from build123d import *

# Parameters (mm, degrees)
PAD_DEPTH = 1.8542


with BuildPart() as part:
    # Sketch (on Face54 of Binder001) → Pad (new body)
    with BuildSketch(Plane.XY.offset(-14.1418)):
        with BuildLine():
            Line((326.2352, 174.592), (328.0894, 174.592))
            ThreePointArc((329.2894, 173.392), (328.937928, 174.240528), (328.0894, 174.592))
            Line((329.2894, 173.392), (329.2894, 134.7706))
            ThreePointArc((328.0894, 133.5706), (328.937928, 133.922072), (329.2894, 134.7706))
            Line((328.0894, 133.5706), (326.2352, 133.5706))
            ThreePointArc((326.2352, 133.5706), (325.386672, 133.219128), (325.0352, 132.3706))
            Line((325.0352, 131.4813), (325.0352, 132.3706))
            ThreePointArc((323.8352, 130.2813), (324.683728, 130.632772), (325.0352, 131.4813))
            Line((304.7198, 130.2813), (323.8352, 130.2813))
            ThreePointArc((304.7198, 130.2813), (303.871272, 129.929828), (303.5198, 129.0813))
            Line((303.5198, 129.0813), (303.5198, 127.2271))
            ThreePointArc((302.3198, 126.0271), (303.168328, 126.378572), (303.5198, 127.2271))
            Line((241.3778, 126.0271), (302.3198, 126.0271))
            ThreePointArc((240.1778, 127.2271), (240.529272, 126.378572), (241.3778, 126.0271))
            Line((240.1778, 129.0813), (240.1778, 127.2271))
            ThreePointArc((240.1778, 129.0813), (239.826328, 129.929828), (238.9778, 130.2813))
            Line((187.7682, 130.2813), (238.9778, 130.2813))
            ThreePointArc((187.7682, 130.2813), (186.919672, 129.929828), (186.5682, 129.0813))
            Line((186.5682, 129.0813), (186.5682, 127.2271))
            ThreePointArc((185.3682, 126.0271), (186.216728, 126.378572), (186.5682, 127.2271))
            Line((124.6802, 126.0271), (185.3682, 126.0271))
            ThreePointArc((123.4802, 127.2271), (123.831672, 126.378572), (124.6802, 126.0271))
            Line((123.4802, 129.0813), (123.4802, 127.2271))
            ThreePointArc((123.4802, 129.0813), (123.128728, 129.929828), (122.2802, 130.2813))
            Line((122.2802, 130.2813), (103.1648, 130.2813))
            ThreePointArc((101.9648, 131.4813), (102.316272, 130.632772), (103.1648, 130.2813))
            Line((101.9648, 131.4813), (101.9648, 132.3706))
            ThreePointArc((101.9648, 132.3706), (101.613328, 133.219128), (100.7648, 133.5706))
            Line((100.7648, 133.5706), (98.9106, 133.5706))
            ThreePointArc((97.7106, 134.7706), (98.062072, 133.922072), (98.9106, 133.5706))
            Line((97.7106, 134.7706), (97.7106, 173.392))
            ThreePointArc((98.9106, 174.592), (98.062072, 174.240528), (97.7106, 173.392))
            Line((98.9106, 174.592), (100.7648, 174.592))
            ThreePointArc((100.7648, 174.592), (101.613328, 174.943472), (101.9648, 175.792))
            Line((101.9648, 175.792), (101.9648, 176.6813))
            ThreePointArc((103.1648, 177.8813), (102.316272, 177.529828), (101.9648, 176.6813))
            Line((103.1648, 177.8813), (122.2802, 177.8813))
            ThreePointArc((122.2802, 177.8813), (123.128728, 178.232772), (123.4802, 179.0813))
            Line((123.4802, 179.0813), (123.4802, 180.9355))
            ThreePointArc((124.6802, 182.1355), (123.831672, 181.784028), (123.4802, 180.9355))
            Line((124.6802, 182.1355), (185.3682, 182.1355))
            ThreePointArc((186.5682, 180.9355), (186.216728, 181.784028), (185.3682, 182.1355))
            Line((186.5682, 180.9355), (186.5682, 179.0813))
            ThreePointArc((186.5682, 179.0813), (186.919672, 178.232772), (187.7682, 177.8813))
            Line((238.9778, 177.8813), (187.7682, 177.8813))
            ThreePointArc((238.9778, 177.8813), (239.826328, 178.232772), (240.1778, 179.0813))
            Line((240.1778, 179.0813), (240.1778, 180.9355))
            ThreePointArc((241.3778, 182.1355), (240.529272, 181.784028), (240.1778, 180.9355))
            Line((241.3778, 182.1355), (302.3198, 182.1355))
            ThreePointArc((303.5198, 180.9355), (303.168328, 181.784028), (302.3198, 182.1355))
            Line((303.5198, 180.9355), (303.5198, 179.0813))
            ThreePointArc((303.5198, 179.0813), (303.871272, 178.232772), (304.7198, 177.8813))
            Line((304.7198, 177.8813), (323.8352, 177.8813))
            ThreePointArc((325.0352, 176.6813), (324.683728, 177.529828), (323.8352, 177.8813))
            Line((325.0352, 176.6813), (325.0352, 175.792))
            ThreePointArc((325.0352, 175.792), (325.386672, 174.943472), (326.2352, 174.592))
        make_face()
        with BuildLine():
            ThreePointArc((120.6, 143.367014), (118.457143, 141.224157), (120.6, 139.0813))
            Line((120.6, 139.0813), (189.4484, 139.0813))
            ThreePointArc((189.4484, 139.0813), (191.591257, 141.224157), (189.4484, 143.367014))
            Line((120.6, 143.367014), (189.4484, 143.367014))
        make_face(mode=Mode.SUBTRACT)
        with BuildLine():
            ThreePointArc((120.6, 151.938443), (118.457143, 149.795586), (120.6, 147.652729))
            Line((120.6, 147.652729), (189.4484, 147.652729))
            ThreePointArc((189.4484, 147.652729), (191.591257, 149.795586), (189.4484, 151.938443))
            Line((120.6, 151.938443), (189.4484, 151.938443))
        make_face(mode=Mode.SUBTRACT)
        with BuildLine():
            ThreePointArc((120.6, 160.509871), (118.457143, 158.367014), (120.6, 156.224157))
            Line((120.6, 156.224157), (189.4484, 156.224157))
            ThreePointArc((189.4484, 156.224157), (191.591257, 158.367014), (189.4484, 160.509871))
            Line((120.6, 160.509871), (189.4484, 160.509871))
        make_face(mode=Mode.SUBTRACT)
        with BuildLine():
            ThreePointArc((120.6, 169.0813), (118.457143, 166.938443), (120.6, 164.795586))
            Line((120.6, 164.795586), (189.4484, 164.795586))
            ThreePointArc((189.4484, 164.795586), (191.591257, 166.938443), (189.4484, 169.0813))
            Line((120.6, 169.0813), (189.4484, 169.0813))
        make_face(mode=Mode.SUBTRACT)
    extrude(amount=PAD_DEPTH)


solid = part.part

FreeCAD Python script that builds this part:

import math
import FreeCAD as App
import Part
import Sketcher

V = App.Vector

doc = App.newDocument("Part")
body = doc.addObject("PartDesign::Body", "Body")

sketch1 = doc.addObject("Sketcher::SketchObject", "Sketch")
body.addObject(sketch1)
sketch1.AttachmentSupport = (doc.XY_Plane, [""])
sketch1.MapMode = "FlatFace"
sketch1.AttachmentOffset = App.Placement(V(0, 0, -14.1418), App.Rotation())
sketch1.addGeometry([
    Part.LineSegment(V(328.0894, 174.592, 0), V(326.2352, 174.592, 0)),
    Part.ArcOfCircle(Part.Circle(V(326.2352, 175.792, 0), V(0, 0, 1), 1.2), math.radians(-179.999978), math.radians(-90.000022)),
    Part.LineSegment(V(325.0352, 175.792, 0), V(325.0352, 176.6813, 0)),
    Part.ArcOfCircle(Part.Circle(V(323.8352, 176.6813, 0), V(0, 0, 1), 1.2), math.radians(0.000022), math.radians(89.999978)),
    Part.LineSegment(V(323.8352, 177.8813, 0), V(304.7198, 177.8813, 0)),
    Part.ArcOfCircle(Part.Circle(V(304.7198, 179.0813, 0), V(0, 0, 1), 1.2), math.radians(-179.999978), math.radians(-90.000022)),
    Part.LineSegment(V(303.5198, 179.0813, 0), V(303.5198, 180.9355, 0)),
    Part.ArcOfCircle(Part.Circle(V(302.3198, 180.9355, 0), V(0, 0, 1), 1.2), math.radians(0.000022), math.radians(89.999978)),
    Part.LineSegment(V(302.3198, 182.1355, 0), V(241.3778, 182.1355, 0)),
    Part.ArcOfCircle(Part.Circle(V(241.3778, 180.9355, 0), V(0, 0, 1), 1.2), math.radians(90.000022), math.radians(179.999978)),
    Part.LineSegment(V(240.1778, 180.9355, 0), V(240.1778, 179.0813, 0)),
    Part.ArcOfCircle(Part.Circle(V(238.9778, 179.0813, 0), V(0, 0, 1), 1.2), math.radians(-89.999978), math.radians(-0.000022)),
    Part.LineSegment(V(238.9778, 177.8813, 0), V(187.7682, 177.8813, 0)),
    Part.ArcOfCircle(Part.Circle(V(187.7682, 179.0813, 0), V(0, 0, 1), 1.2), math.radians(-179.999978), math.radians(-90.000022)),
    Part.LineSegment(V(186.5682, 179.0813, 0), V(186.5682, 180.9355, 0)),
    Part.ArcOfCircle(Part.Circle(V(185.3682, 180.9355, 0), V(0, 0, 1), 1.2), math.radians(0.000022), math.radians(89.999978)),
    Part.LineSegment(V(185.3682, 182.1355, 0), V(124.6802, 182.1355, 0)),
    Part.ArcOfCircle(Part.Circle(V(124.6802, 180.9355, 0), V(0, 0, 1), 1.2), math.radians(90.000022), math.radians(179.999978)),
    Part.LineSegment(V(123.4802, 180.9355, 0), V(123.4802, 179.0813, 0)),
    Part.ArcOfCircle(Part.Circle(V(122.2802, 179.0813, 0), V(0, 0, 1), 1.2), math.radians(-89.999978), math.radians(-0.000022)),
    Part.LineSegment(V(122.2802, 177.8813, 0), V(103.1648, 177.8813, 0)),
    Part.ArcOfCircle(Part.Circle(V(103.1648, 176.6813, 0), V(0, 0, 1), 1.2), math.radians(90.000022), math.radians(179.999978)),
    Part.LineSegment(V(101.9648, 176.6813, 0), V(101.9648, 175.792, 0)),
    Part.ArcOfCircle(Part.Circle(V(100.7648, 175.792, 0), V(0, 0, 1), 1.2), math.radians(-89.999978), math.radians(-0.000022)),
    Part.LineSegment(V(100.7648, 174.592, 0), V(98.9106, 174.592, 0)),
    Part.ArcOfCircle(Part.Circle(V(98.9106, 173.392, 0), V(0, 0, 1), 1.2), math.radians(90.000022), math.radians(179.999978)),
    Part.LineSegment(V(97.7106, 173.392, 0), V(97.7106, 134.7706, 0)),
    Part.ArcOfCircle(Part.Circle(V(98.9106, 134.7706, 0), V(0, 0, 1), 1.2), math.radians(-179.999978), math.radians(-90.000022)),
    Part.LineSegment(V(98.9106, 133.5706, 0), V(100.7648, 133.5706, 0)),
    Part.ArcOfCircle(Part.Circle(V(100.7648, 132.3706, 0), V(0, 0, 1), 1.2), math.radians(0.000022), math.radians(89.999978)),
    Part.LineSegment(V(101.9648, 132.3706, 0), V(101.9648, 131.4813, 0)),
    Part.ArcOfCircle(Part.Circle(V(103.1648, 131.4813, 0), V(0, 0, 1), 1.2), math.radians(-179.999978), math.radians(-90.000022)),
    Part.LineSegment(V(103.1648, 130.2813, 0), V(122.2802, 130.2813, 0)),
    Part.ArcOfCircle(Part.Circle(V(122.2802, 129.0813, 0), V(0, 0, 1), 1.2), math.radians(0.000022), math.radians(89.999978)),
    Part.LineSegment(V(123.4802, 129.0813, 0), V(123.4802, 127.2271, 0)),
    Part.ArcOfCircle(Part.Circle(V(124.6802, 127.2271, 0), V(0, 0, 1), 1.2), math.radians(-179.999978), math.radians(-90.000022)),
    Part.LineSegment(V(124.6802, 126.0271, 0), V(185.3682, 126.0271, 0)),
    Part.ArcOfCircle(Part.Circle(V(185.3682, 127.2271, 0), V(0, 0, 1), 1.2), math.radians(-89.999978), math.radians(-0.000022)),
    Part.LineSegment(V(186.5682, 127.2271, 0), V(186.5682, 129.0813, 0)),
    Part.ArcOfCircle(Part.Circle(V(187.7682, 129.0813, 0), V(0, 0, 1), 1.2), math.radians(90.000022), math.radians(179.999978)),
    Part.LineSegment(V(187.7682, 130.2813, 0), V(238.9778, 130.2813, 0)),
    Part.ArcOfCircle(Part.Circle(V(238.9778, 129.0813, 0), V(0, 0, 1), 1.2), math.radians(0.000022), math.radians(89.999978)),
    Part.LineSegment(V(240.1778, 129.0813, 0), V(240.1778, 127.2271, 0)),
    Part.ArcOfCircle(Part.Circle(V(241.3778, 127.2271, 0), V(0, 0, 1), 1.2), math.radians(-179.999978), math.radians(-90.000022)),
    Part.LineSegment(V(241.3778, 126.0271, 0), V(302.3198, 126.0271, 0)),
    Part.ArcOfCircle(Part.Circle(V(302.3198, 127.2271, 0), V(0, 0, 1), 1.2), math.radians(-89.999978), math.radians(-0.000022)),
    Part.LineSegment(V(303.5198, 127.2271, 0), V(303.5198, 129.0813, 0)),
    Part.ArcOfCircle(Part.Circle(V(304.7198, 129.0813, 0), V(0, 0, 1), 1.2), math.radians(90.000022), math.radians(179.999978)),
    Part.LineSegment(V(304.7198, 130.2813, 0), V(323.8352, 130.2813, 0)),
    Part.ArcOfCircle(Part.Circle(V(323.8352, 131.4813, 0), V(0, 0, 1), 1.2), math.radians(-89.999978), math.radians(-0.000022)),
    Part.LineSegment(V(325.0352, 131.4813, 0), V(325.0352, 132.3706, 0)),
    Part.ArcOfCircle(Part.Circle(V(326.2352, 132.3706, 0), V(0, 0, 1), 1.2), math.radians(90.000022), math.radians(179.999978)),
    Part.LineSegment(V(326.2352, 133.5706, 0), V(328.0894, 133.5706, 0)),
    Part.ArcOfCircle(Part.Circle(V(328.0894, 134.7706, 0), V(0, 0, 1), 1.2), math.radians(-89.999978), math.radians(-0.000022)),
    Part.LineSegment(V(329.2894, 134.7706, 0), V(329.2894, 173.392, 0)),
    Part.ArcOfCircle(Part.Circle(V(328.0894, 173.392, 0), V(0, 0, 1), 1.2), math.radians(0.000022), math.radians(89.999978)),
    Part.LineSegment(V(120.6, 143.367014, 0), V(189.4484, 143.367014, 0)),
    Part.ArcOfCircle(Part.Circle(V(189.4484, 141.224157, 0), V(0, 0, 1), 2.142857), math.radians(-90), math.radians(90)),
    Part.LineSegment(V(189.4484, 139.0813, 0), V(120.6, 139.0813, 0)),
    Part.ArcOfCircle(Part.Circle(V(120.6, 141.224157, 0), V(0, 0, 1), 2.142857), math.radians(90), math.radians(270)),
    Part.LineSegment(V(120.6, 151.938443, 0), V(189.4484, 151.938443, 0)),
    Part.ArcOfCircle(Part.Circle(V(189.4484, 149.795586, 0), V(0, 0, 1), 2.142857), math.radians(-90), math.radians(90)),
    Part.LineSegment(V(189.4484, 147.652729, 0), V(120.6, 147.652729, 0)),
    Part.ArcOfCircle(Part.Circle(V(120.6, 149.795586, 0), V(0, 0, 1), 2.142857), math.radians(90), math.radians(270)),
    Part.LineSegment(V(120.6, 160.509871, 0), V(189.4484, 160.509871, 0)),
    Part.ArcOfCircle(Part.Circle(V(189.4484, 158.367014, 0), V(0, 0, 1), 2.142857), math.radians(-90), math.radians(90)),
    Part.LineSegment(V(189.4484, 156.224157, 0), V(120.6, 156.224157, 0)),
    Part.ArcOfCircle(Part.Circle(V(120.6, 158.367014, 0), V(0, 0, 1), 2.142857), math.radians(90), math.radians(270)),
    Part.LineSegment(V(120.6, 169.0813, 0), V(189.4484, 169.0813, 0)),
    Part.ArcOfCircle(Part.Circle(V(189.4484, 166.938443, 0), V(0, 0, 1), 2.142857), math.radians(-90), math.radians(90)),
    Part.LineSegment(V(189.4484, 164.795586, 0), V(120.6, 164.795586, 0)),
    Part.ArcOfCircle(Part.Circle(V(120.6, 166.938443, 0), V(0, 0, 1), 2.142857), math.radians(90), math.radians(270)),
], False)
sketch1.addConstraint([
    Sketcher.Constraint("Tangent", 0, 2, 1, 2),
    Sketcher.Constraint("Tangent", 1, 1, 2, 1),
    Sketcher.Constraint("Tangent", 2, 2, 3, 1),
    Sketcher.Constraint("Tangent", 3, 2, 4, 1),
    Sketcher.Constraint("Tangent", 4, 2, 5, 2),
    Sketcher.Constraint("Tangent", 5, 1, 6, 1),
    Sketcher.Constraint("Tangent", 6, 2, 7, 1),
    Sketcher.Constraint("Tangent", 7, 2, 8, 1),
    Sketcher.Constraint("Tangent", 8, 2, 9, 1),
    Sketcher.Constraint("Tangent", 9, 2, 10, 1),
    Sketcher.Constraint("Tangent", 10, 2, 11, 2),
    Sketcher.Constraint("Tangent", 11, 1, 12, 1),
    Sketcher.Constraint("Tangent", 12, 2, 13, 2),
    Sketcher.Constraint("Tangent", 13, 1, 14, 1),
    Sketcher.Constraint("Tangent", 14, 2, 15, 1),
    Sketcher.Constraint("Tangent", 15, 2, 16, 1),
    Sketcher.Constraint("Tangent", 16, 2, 17, 1),
    Sketcher.Constraint("Tangent", 17, 2, 18, 1),
    Sketcher.Constraint("Tangent", 18, 2, 19, 2),
    Sketcher.Constraint("Tangent", 19, 1, 20, 1),
    Sketcher.Constraint("Tangent", 20, 2, 21, 1),
    Sketcher.Constraint("Tangent", 21, 2, 22, 1),
    Sketcher.Constraint("Tangent", 22, 2, 23, 2),
    Sketcher.Constraint("Tangent", 23, 1, 24, 1),
    Sketcher.Constraint("Tangent", 24, 2, 25, 1),
    Sketcher.Constraint("Tangent", 25, 2, 26, 1),
    Sketcher.Constraint("Tangent", 26, 2, 27, 1),
    Sketcher.Constraint("Tangent", 27, 2, 28, 1),
    Sketcher.Constraint("Tangent", 28, 2, 29, 2),
    Sketcher.Constraint("Tangent", 29, 1, 30, 1),
    Sketcher.Constraint("Tangent", 30, 2, 31, 1),
    Sketcher.Constraint("Tangent", 31, 2, 32, 1),
    Sketcher.Constraint("Tangent", 32, 2, 33, 2),
    Sketcher.Constraint("Tangent", 33, 1, 34, 1),
    Sketcher.Constraint("Tangent", 34, 2, 35, 1),
    Sketcher.Constraint("Tangent", 35, 2, 36, 1),
    Sketcher.Constraint("Tangent", 36, 2, 37, 1),
    Sketcher.Constraint("Tangent", 37, 2, 38, 1),
    Sketcher.Constraint("Tangent", 38, 2, 39, 2),
    Sketcher.Constraint("Tangent", 39, 1, 40, 1),
    Sketcher.Constraint("Tangent", 40, 2, 41, 2),
    Sketcher.Constraint("Tangent", 41, 1, 42, 1),
    Sketcher.Constraint("Tangent", 42, 2, 43, 1),
    Sketcher.Constraint("Tangent", 43, 2, 44, 1),
    Sketcher.Constraint("Tangent", 44, 2, 45, 1),
    Sketcher.Constraint("Tangent", 45, 2, 46, 1),
    Sketcher.Constraint("Tangent", 46, 2, 47, 2),
    Sketcher.Constraint("Tangent", 47, 1, 48, 1),
    Sketcher.Constraint("Tangent", 48, 2, 49, 1),
    Sketcher.Constraint("Tangent", 49, 2, 50, 1),
    Sketcher.Constraint("Tangent", 50, 2, 51, 2),
    Sketcher.Constraint("Tangent", 51, 1, 52, 1),
    Sketcher.Constraint("Tangent", 52, 2, 53, 1),
    Sketcher.Constraint("Tangent", 53, 2, 54, 1),
    Sketcher.Constraint("Tangent", 54, 2, 55, 1),
    Sketcher.Constraint("Tangent", 55, 2, 0, 1),
    Sketcher.Constraint("Tangent", 56, 2, 57, 2),
    Sketcher.Constraint("Tangent", 57, 1, 58, 1),
    Sketcher.Constraint("Tangent", 58, 2, 59, 2),
    Sketcher.Constraint("Tangent", 59, 1, 56, 1),
    Sketcher.Constraint("Tangent", 60, 2, 61, 2),
    Sketcher.Constraint("Tangent", 61, 1, 62, 1),
    Sketcher.Constraint("Tangent", 62, 2, 63, 2),
    Sketcher.Constraint("Tangent", 63, 1, 60, 1),
    Sketcher.Constraint("Tangent", 64, 2, 65, 2),
    Sketcher.Constraint("Tangent", 65, 1, 66, 1),
    Sketcher.Constraint("Tangent", 66, 2, 67, 2),
    Sketcher.Constraint("Tangent", 67, 1, 64, 1),
    Sketcher.Constraint("Tangent", 68, 2, 69, 2),
    Sketcher.Constraint("Tangent", 69, 1, 70, 1),
    Sketcher.Constraint("Tangent", 70, 2, 71, 2),
    Sketcher.Constraint("Tangent", 71, 1, 68, 1),
    Sketcher.Constraint("Horizontal", 0),
    Sketcher.Constraint("Vertical", 2),
    Sketcher.Constraint("Horizontal", 4),
    Sketcher.Constraint("Vertical", 6),
    Sketcher.Constraint("Horizontal", 8),
    Sketcher.Constraint("Vertical", 10),
    Sketcher.Constraint("Horizontal", 12),
    Sketcher.Constraint("Vertical", 14),
    Sketcher.Constraint("Horizontal", 16),
    Sketcher.Constraint("Vertical", 18),
    Sketcher.Constraint("Horizontal", 20),
    Sketcher.Constraint("Vertical", 22),
    Sketcher.Constraint("Horizontal", 24),
    Sketcher.Constraint("Vertical", 26),
    Sketcher.Constraint("Horizontal", 28),
    Sketcher.Constraint("Vertical", 30),
    Sketcher.Constraint("Horizontal", 32),
    Sketcher.Constraint("Vertical", 34),
    Sketcher.Constraint("Horizontal", 36),
    Sketcher.Constraint("Vertical", 38),
    Sketcher.Constraint("Horizontal", 40),
    Sketcher.Constraint("Vertical", 42),
    Sketcher.Constraint("Horizontal", 44),
    Sketcher.Constraint("Vertical", 46),
    Sketcher.Constraint("Horizontal", 48),
    Sketcher.Constraint("Vertical", 50),
    Sketcher.Constraint("Horizontal", 52),
    Sketcher.Constraint("Vertical", 54),
    Sketcher.Constraint("Horizontal", 56),
    Sketcher.Constraint("Horizontal", 58),
    Sketcher.Constraint("Horizontal", 60),
    Sketcher.Constraint("Horizontal", 62),
    Sketcher.Constraint("Horizontal", 64),
    Sketcher.Constraint("Horizontal", 66),
    Sketcher.Constraint("Horizontal", 68),
    Sketcher.Constraint("Horizontal", 70),
    Sketcher.Constraint("Equal", 1, 3),
    Sketcher.Constraint("Equal", 3, 5),
    Sketcher.Constraint("Equal", 5, 7),
    Sketcher.Constraint("Equal", 7, 9),
    Sketcher.Constraint("Equal", 9, 11),
    Sketcher.Constraint("Equal", 11, 13),
    Sketcher.Constraint("Equal", 13, 15),
    Sketcher.Constraint("Equal", 15, 17),
    Sketcher.Constraint("Equal", 17, 19),
    Sketcher.Constraint("Equal", 19, 21),
    Sketcher.Constraint("Equal", 21, 23),
    Sketcher.Constraint("Equal", 23, 25),
    Sketcher.Constraint("Equal", 25, 27),
    Sketcher.Constraint("Equal", 27, 29),
    Sketcher.Constraint("Equal", 29, 31),
    Sketcher.Constraint("Equal", 31, 33),
    Sketcher.Constraint("Equal", 33, 35),
    Sketcher.Constraint("Equal", 35, 37),
    Sketcher.Constraint("Equal", 37, 39),
    Sketcher.Constraint("Equal", 39, 41),
    Sketcher.Constraint("Equal", 41, 43),
    Sketcher.Constraint("Equal", 43, 45),
    Sketcher.Constraint("Equal", 45, 47),
    Sketcher.Constraint("Equal", 47, 49),
    Sketcher.Constraint("Equal", 49, 51),
    Sketcher.Constraint("Equal", 51, 53),
    Sketcher.Constraint("Equal", 53, 55),
    Sketcher.Constraint("Equal", 59, 61),
    Sketcher.Constraint("Equal", 63, 65),
    Sketcher.Constraint("Equal", 67, 69),
    Sketcher.Constraint("Horizontal", 5, 3, 11, 3),
    Sketcher.Constraint("Horizontal", 9, 3, 15, 3),
    Sketcher.Constraint("Horizontal", 13, 3, 19, 3),
    Sketcher.Constraint("Horizontal", 1, 3, 23, 3),
    Sketcher.Constraint("Horizontal", 33, 3, 39, 3),
    Sketcher.Constraint("Horizontal", 37, 3, 43, 3),
    Sketcher.Constraint("Horizontal", 41, 3, 47, 3),
    Sketcher.Constraint("Horizontal", 29, 3, 51, 3),
    Sketcher.Constraint("Vertical", 23, 3, 29, 3),
    Sketcher.Constraint("Vertical", 19, 3, 33, 3),
    Sketcher.Constraint("Vertical", 15, 3, 37, 3),
    Sketcher.Constraint("Vertical", 11, 3, 41, 3),
    Sketcher.Constraint("Vertical", 7, 3, 45, 3),
    Sketcher.Constraint("Vertical", 3, 3, 49, 3),
    Sketcher.Constraint("Vertical", 57, 3, 61, 3),
    Sketcher.Constraint("Vertical", 59, 3, 63, 3),
    Sketcher.Constraint("Vertical", 61, 3, 65, 3),
    Sketcher.Constraint("Vertical", 63, 3, 67, 3),
    Sketcher.Constraint("Vertical", 65, 3, 69, 3),
    Sketcher.Constraint("Vertical", 67, 3, 71, 3),
    Sketcher.Constraint("Equal", 4, 20),
    Sketcher.Constraint("Equal", 0, 24),
    Sketcher.Constraint("Equal", 52, 6),
    Sketcher.Constraint("Equal", 22, 30),
    Sketcher.Constraint("Equal", 18, 34),
    Sketcher.Constraint("Radius", 1, 1.2),
    Sketcher.Constraint("DistanceX", -1, 1, 59, 3, 120.6),
    Sketcher.Constraint("DistanceX", 8, 2, 8, 1, 60.942),
    Sketcher.Constraint("DistanceX", 16, 2, 16, 1, 60.688),
    Sketcher.Constraint("DistanceX", 0, 2, 0, 1, 1.8542),
    Sketcher.Constraint("DistanceX", 4, 2, 4, 1, 19.1154),
    Sketcher.Constraint("DistanceX", 12, 2, 12, 1, 51.2096),
    Sketcher.Constraint("DistanceX", 56, 1, 56, 2, 68.8484),
    Sketcher.Constraint("DistanceY", 2, 1, 2, 2, 0.8893),
    Sketcher.Constraint("DistanceY", 26, 2, 26, 1, 38.6214),
    Sketcher.Constraint("DistanceY", -1, 1, 1, 3, 175.792),
    Sketcher.Constraint("Radius", 57, 2.142857),
    Sketcher.Constraint("DistanceX", -1, 1, 1, 3, 326.2352),
    Sketcher.Constraint("DistanceY", -1, 1, 57, 1, 139.0813),
    Sketcher.Constraint("DistanceY", -1, 1, 68, 2, 169.0813),
    Sketcher.Constraint("DistanceY", -1, 1, 61, 1, 147.652729),
    Sketcher.Constraint("DistanceY", -1, 1, 64, 2, 160.509871),
])
pad1 = doc.addObject("PartDesign::Pad", "Pad")
body.addObject(pad1)
pad1.Profile = sketch1
pad1.Length = 1.8542

doc.recompute()
